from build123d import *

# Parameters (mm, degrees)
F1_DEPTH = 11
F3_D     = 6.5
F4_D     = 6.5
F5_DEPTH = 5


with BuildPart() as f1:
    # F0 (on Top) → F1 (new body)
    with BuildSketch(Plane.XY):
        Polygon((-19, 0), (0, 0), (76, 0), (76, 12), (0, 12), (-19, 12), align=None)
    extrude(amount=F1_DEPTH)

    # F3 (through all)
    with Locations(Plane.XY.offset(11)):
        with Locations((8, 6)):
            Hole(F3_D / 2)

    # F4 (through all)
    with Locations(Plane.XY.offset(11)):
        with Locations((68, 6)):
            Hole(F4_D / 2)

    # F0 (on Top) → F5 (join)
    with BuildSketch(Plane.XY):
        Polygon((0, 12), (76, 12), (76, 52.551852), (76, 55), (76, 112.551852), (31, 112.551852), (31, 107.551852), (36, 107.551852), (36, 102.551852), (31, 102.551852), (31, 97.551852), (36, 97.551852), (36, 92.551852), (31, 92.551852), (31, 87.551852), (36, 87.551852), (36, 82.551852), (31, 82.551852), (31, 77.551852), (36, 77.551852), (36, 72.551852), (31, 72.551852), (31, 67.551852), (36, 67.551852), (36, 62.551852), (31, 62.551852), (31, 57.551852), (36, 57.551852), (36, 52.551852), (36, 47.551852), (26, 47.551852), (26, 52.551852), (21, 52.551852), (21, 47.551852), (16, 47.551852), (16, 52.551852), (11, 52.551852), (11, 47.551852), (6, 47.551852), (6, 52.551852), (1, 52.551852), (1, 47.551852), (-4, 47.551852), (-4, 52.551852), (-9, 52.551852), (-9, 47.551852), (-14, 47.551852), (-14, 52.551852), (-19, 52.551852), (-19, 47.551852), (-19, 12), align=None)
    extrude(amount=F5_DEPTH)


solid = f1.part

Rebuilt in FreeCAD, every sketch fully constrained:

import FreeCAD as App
import Part
import Sketcher
Q = App.Units.Quantity

doc = App.newDocument("Part")
body = doc.addObject("PartDesign::Body", "Body")

sketch1 = body.newObject("Sketcher::SketchObject", "Sketch")
sketch1.AttachmentSupport = (doc.getObject("XY_Plane"), [""])
sketch1.MapMode = "FlatFace"
sketch1.addGeometry(Part.LineSegment(App.Vector(-19, 0, 0), App.Vector(76, 0, 0)), False)
sketch1.addGeometry(Part.LineSegment(App.Vector(76, 0, 0), App.Vector(76, 12, 0)), False)
sketch1.addGeometry(Part.LineSegment(App.Vector(76, 12, 0), App.Vector(-19, 12, 0)), False)
sketch1.addGeometry(Part.LineSegment(App.Vector(-19, 12, 0), App.Vector(-19, 0, 0)), False)
sketch1.addConstraint(Sketcher.Constraint("Coincident", 0, 2, 1, 1))
sketch1.addConstraint(Sketcher.Constraint("Coincident", 1, 2, 2, 1))
sketch1.addConstraint(Sketcher.Constraint("Coincident", 2, 2, 3, 1))
sketch1.addConstraint(Sketcher.Constraint("Coincident", 3, 2, 0, 1))
sketch1.addConstraint(Sketcher.Constraint("Horizontal", 0))
sketch1.addConstraint(Sketcher.Constraint("Vertical", 1))
sketch1.addConstraint(Sketcher.Constraint("Horizontal", 2))
sketch1.addConstraint(Sketcher.Constraint("Vertical", 3))
sketch1.addConstraint(Sketcher.Constraint("PointOnObject", 0, 2, -1))
sketch1.addConstraint(Sketcher.Constraint("DistanceX", 0, 1, 0, 2, Q("95 mm")))
sketch1.addConstraint(Sketcher.Constraint("DistanceY", 1, 1, 1, 2, Q("12 mm")))
sketch1.addConstraint(Sketcher.Constraint("DistanceX", -1, 1, 0, 2, Q("76 mm")))
pad1 = body.newObject("PartDesign::Pad", "Pad")
pad1.Profile = sketch1
pad1.Length = 11

sketch2 = body.newObject("Sketcher::SketchObject", "Sketch001")
sketch2.AttachmentSupport = (doc.getObject("XY_Plane"), [""])
sketch2.MapMode = "FlatFace"
sketch2.AttachmentOffset = App.Placement(App.Vector(0, 0, 11), App.Rotation())
sketch2.addGeometry(Part.Circle(App.Vector(8, 6, 0), App.Vector(0, 0, 1), 3.2), False)
sketch2.addConstraint(Sketcher.Constraint("Diameter", 0, Q("6.5 mm")))
sketch2.addConstraint(Sketcher.Constraint("DistanceX", -1, 1, 0, 3, Q("8 mm")))
sketch2.addConstraint(Sketcher.Constraint("DistanceY", -1, 1, 0, 3, Q("6 mm")))
doc.recompute()
hole = body.newObject("PartDesign::Hole", "Hole")
hole.Profile = sketch2
hole.ThreadType = "None"
hole.Diameter = 6.5
hole.DepthType = "ThroughAll"

sketch3 = body.newObject("Sketcher::SketchObject", "Sketch002")
sketch3.AttachmentSupport = (doc.getObject("XY_Plane"), [""])
sketch3.MapMode = "FlatFace"
sketch3.AttachmentOffset = App.Placement(App.Vector(0, 0, 11), App.Rotation())
sketch3.addGeometry(Part.Circle(App.Vector(68, 6, 0), App.Vector(0, 0, 1), 3.2), False)
sketch3.addConstraint(Sketcher.Constraint("Diameter", 0, Q("6.5 mm")))
sketch3.addConstraint(Sketcher.Constraint("DistanceX", -1, 1, 0, 3, Q("68 mm")))
sketch3.addConstraint(Sketcher.Constraint("DistanceY", -1, 1, 0, 3, Q("6 mm")))
doc.recompute()
hole2 = body.newObject("PartDesign::Hole", "Hole001")
hole2.Profile = sketch3
hole2.ThreadType = "None"
hole2.Diameter = 6.5
hole2.DepthType = "ThroughAll"

sketch4 = body.newObject("Sketcher::SketchObject", "Sketch003")
sketch4.AttachmentSupport = (doc.getObject("XY_Plane"), [""])
sketch4.MapMode = "FlatFace"
sketch4.addGeometry(Part.LineSegment(App.Vector(76, 12, 0), App.Vector(76, 113, 0)), False)
sketch4.addGeometry(Part.LineSegment(App.Vector(76, 113, 0), App.Vector(31, 113, 0)), False)
sketch4.addGeometry(Part.LineSegment(App.Vector(31, 113, 0), App.Vector(31, 108, 0)), False)
sketch4.addGeometry(Part.LineSegment(App.Vector(31, 108, 0), App.Vector(36, 108, 0)), False)
sketch4.addGeometry(Part.LineSegment(App.Vector(36, 108, 0), App.Vector(36, 103, 0)), False)
sketch4.addGeometry(Part.LineSegment(App.Vector(36, 103, 0), App.Vector(31, 103, 0)), False)
sketch4.addGeometry(Part.LineSegment(App.Vector(31, 103, 0), App.Vector(31, 98, 0)), False)
sketch4.addGeometry(Part.LineSegment(App.Vector(31, 98, 0), App.Vector(36, 98, 0)), False)
sketch4.addGeometry(Part.LineSegment(App.Vector(36, 98, 0), App.Vector(36, 93, 0)), False)
sketch4.addGeometry(Part.LineSegment(App.Vector(36, 93, 0), App.Vector(31, 93, 0)), False)
sketch4.addGeometry(Part.LineSegment(App.Vector(31, 93, 0), App.Vector(31, 88, 0)), False)
sketch4.addGeometry(Part.LineSegment(App.Vector(31, 88, 0), App.Vector(36, 88, 0)), False)
sketch4.addGeometry(Part.LineSegment(App.Vector(36, 88, 0), App.Vector(36, 83, 0)), False)
sketch4.addGeometry(Part.LineSegment(App.Vector(36, 83, 0), App.Vector(31, 83, 0)), False)
sketch4.addGeometry(Part.LineSegment(App.Vector(31, 83, 0), App.Vector(31, 78, 0)), False)
sketch4.addGeometry(Part.LineSegment(App.Vector(31, 78, 0), App.Vector(36, 78, 0)), False)
sketch4.addGeometry(Part.LineSegment(App.Vector(36, 78, 0), App.Vector(36, 73, 0)), False)
sketch4.addGeometry(Part.LineSegment(App.Vector(36, 73, 0), App.Vector(31, 73, 0)), False)
sketch4.addGeometry(Part.LineSegment(App.Vector(31, 73, 0), App.Vector(31, 68, 0)), False)
sketch4.addGeometry(Part.LineSegment(App.Vector(31, 68, 0), App.Vector(36, 68, 0)), False)
sketch4.addGeometry(Part.LineSegment(App.Vector(36, 68, 0), App.Vector(36, 63, 0)), False)
sketch4.addGeometry(Part.LineSegment(App.Vector(36, 63, 0), App.Vector(31, 63, 0)), False)
sketch4.addGeometry(Part.LineSegment(App.Vector(31, 63, 0), App.Vector(31, 58, 0)), False)
sketch4.addGeometry(Part.LineSegment(App.Vector(31, 58, 0), App.Vector(36, 58, 0)), False)
sketch4.addGeometry(Part.LineSegment(App.Vector(36, 58, 0), App.Vector(36, 48, 0)), False)
sketch4.addGeometry(Part.LineSegment(App.Vector(36, 48, 0), App.Vector(26, 48, 0)), False)
sketch4.addGeometry(Part.LineSegment(App.Vector(26, 48, 0), App.Vector(26, 53, 0)), False)
sketch4.addGeometry(Part.LineSegment(App.Vector(26, 53, 0), App.Vector(21, 53, 0)), False)
sketch4.addGeometry(Part.LineSegment(App.Vector(21, 53, 0), App.Vector(21, 48, 0)), False)
sketch4.addGeometry(Part.LineSegment(App.Vector(21, 48, 0), App.Vector(16, 48, 0)), False)
sketch4.addGeometry(Part.LineSegment(App.Vector(16, 48, 0), App.Vector(16, 53, 0)), False)
sketch4.addGeometry(Part.LineSegment(App.Vector(16, 53, 0), App.Vector(11, 53, 0)), False)
sketch4.addGeometry(Part.LineSegment(App.Vector(11, 53, 0), App.Vector(11, 48, 0)), False)
sketch4.addGeometry(Part.LineSegment(App.Vector(11, 48, 0), App.Vector(6, 48, 0)), False)
sketch4.addGeometry(Part.LineSegment(App.Vector(6, 48, 0), App.Vector(6, 53, 0)), False)
sketch4.addGeometry(Part.LineSegment(App.Vector(6, 53, 0), App.Vector(1, 53, 0)), False)
sketch4.addGeometry(Part.LineSegment(App.Vector(1, 53, 0), App.Vector(1, 48, 0)), False)
sketch4.addGeometry(Part.LineSegment(App.Vector(1, 48, 0), App.Vector(-4, 48, 0)), False)
sketch4.addGeometry(Part.LineSegment(App.Vector(-4, 48, 0), App.Vector(-4, 53, 0)), False)
sketch4.addGeometry(Part.LineSegment(App.Vector(-4, 53, 0), App.Vector(-9, 53, 0)), False)
sketch4.addGeometry(Part.LineSegment(App.Vector(-9, 53, 0), App.Vector(-9, 48, 0)), False)
sketch4.addGeometry(Part.LineSegment(App.Vector(-9, 48, 0), App.Vector(-14, 48, 0)), False)
sketch4.addGeometry(Part.LineSegment(App.Vector(-14, 48, 0), App.Vector(-14, 53, 0)), False)
sketch4.addGeometry(Part.LineSegment(App.Vector(-14, 53, 0), App.Vector(-19, 53, 0)), False)
sketch4.addGeometry(Part.LineSegment(App.Vector(-19, 53, 0), App.Vector(-19, 12, 0)), False)
sketch4.addGeometry(Part.LineSegment(App.Vector(-19, 12, 0), App.Vector(76, 12, 0)), False)
sketch4.addConstraint(Sketcher.Constraint("Coincident", 0, 2, 1, 1))
sketch4.addConstraint(Sketcher.Constraint("Coincident", 1, 2, 2, 1))
sketch4.addConstraint(Sketcher.Constraint("Coincident", 2, 2, 3, 1))
sketch4.addConstraint(Sketcher.Constraint("Coincident", 3, 2, 4, 1))
sketch4.addConstraint(Sketcher.Constraint("Coincident", 4, 2, 5, 1))
sketch4.addConstraint(Sketcher.Constraint("Coincident", 5, 2, 6, 1))
sketch4.addConstraint(Sketcher.Constraint("Coincident", 6, 2, 7, 1))
sketch4.addConstraint(Sketcher.Constraint("Coincident", 7, 2, 8, 1))
sketch4.addConstraint(Sketcher.Constraint("Coincident", 8, 2, 9, 1))
sketch4.addConstraint(Sketcher.Constraint("Coincident", 9, 2, 10, 1))
sketch4.addConstraint(Sketcher.Constraint("Coincident", 10, 2, 11, 1))
sketch4.addConstraint(Sketcher.Constraint("Coincident", 11, 2, 12, 1))
sketch4.addConstraint(Sketcher.Constraint("Coincident", 12, 2, 13, 1))
sketch4.addConstraint(Sketcher.Constraint("Coincident", 13, 2, 14, 1))
sketch4.addConstraint(Sketcher.Constraint("Coincident", 14, 2, 15, 1))
sketch4.addConstraint(Sketcher.Constraint("Coincident", 15, 2, 16, 1))
sketch4.addConstraint(Sketcher.Constraint("Coincident", 16, 2, 17, 1))
sketch4.addConstraint(Sketcher.Constraint("Coincident", 17, 2, 18, 1))
sketch4.addConstraint(Sketcher.Constraint("Coincident", 18, 2, 19, 1))
sketch4.addConstraint(Sketcher.Constraint("Coincident", 19, 2, 20, 1))
sketch4.addConstraint(Sketcher.Constraint("Coincident", 20, 2, 21, 1))
sketch4.addConstraint(Sketcher.Constraint("Coincident", 21, 2, 22, 1))
sketch4.addConstraint(Sketcher.Constraint("Coincident", 22, 2, 23, 1))
sketch4.addConstraint(Sketcher.Constraint("Coincident", 23, 2, 24, 1))
sketch4.addConstraint(Sketcher.Constraint("Coincident", 24, 2, 25, 1))
sketch4.addConstraint(Sketcher.Constraint("Coincident", 25, 2, 26, 1))
sketch4.addConstraint(Sketcher.Constraint("Coincident", 26, 2, 27, 1))
sketch4.addConstraint(Sketcher.Constraint("Coincident", 27, 2, 28, 1))
sketch4.addConstraint(Sketcher.Constraint("Coincident", 28, 2, 29, 1))
sketch4.addConstraint(Sketcher.Constraint("Coincident", 29, 2, 30, 1))
sketch4.addConstraint(Sketcher.Constraint("Coincident", 30, 2, 31, 1))
sketch4.addConstraint(Sketcher.Constraint("Coincident", 31, 2, 32, 1))
sketch4.addConstraint(Sketcher.Constraint("Coincident", 32, 2, 33, 1))
sketch4.addConstraint(Sketcher.Constraint("Coincident", 33, 2, 34, 1))
sketch4.addConstraint(Sketcher.Constraint("Coincident", 34, 2, 35, 1))
sketch4.addConstraint(Sketcher.Constraint("Coincident", 35, 2, 36, 1))
sketch4.addConstraint(Sketcher.Constraint("Coincident", 36, 2, 37, 1))
sketch4.addConstraint(Sketcher.Constraint("Coincident", 37, 2, 38, 1))
sketch4.addConstraint(Sketcher.Constraint("Coincident", 38, 2, 39, 1))
sketch4.addConstraint(Sketcher.Constraint("Coincident", 39, 2, 40, 1))
sketch4.addConstraint(Sketcher.Constraint("Coincident", 40, 2, 41, 1))
sketch4.addConstraint(Sketcher.Constraint("Coincident", 41, 2, 42, 1))
sketch4.addConstraint(Sketcher.Constraint("Coincident", 42, 2, 43, 1))
sketch4.addConstraint(Sketcher.Constraint("Coincident", 43, 2, 44, 1))
sketch4.addConstraint(Sketcher.Constraint("Coincident", 44, 2, 45, 1))
sketch4.addConstraint(Sketcher.Constraint("Coincident", 45, 2, 0, 1))
sketch4.addConstraint(Sketcher.Constraint("Vertical", 0))
sketch4.addConstraint(Sketcher.Constraint("Horizontal", 1))
sketch4.addConstraint(Sketcher.Constraint("Vertical", 2))
sketch4.addConstraint(Sketcher.Constraint("Horizontal", 3))
sketch4.addConstraint(Sketcher.Constraint("Vertical", 4))
sketch4.addConstraint(Sketcher.Constraint("Horizontal", 5))
sketch4.addConstraint(Sketcher.Constraint("Vertical", 6))
sketch4.addConstraint(Sketcher.Constraint("Horizontal", 7))
sketch4.addConstraint(Sketcher.Constraint("Vertical", 8))
sketch4.addConstraint(Sketcher.Constraint("Horizontal", 9))
sketch4.addConstraint(Sketcher.Constraint("Vertical", 10))
sketch4.addConstraint(Sketcher.Constraint("Horizontal", 11))
sketch4.addConstraint(Sketcher.Constraint("Vertical", 12))
sketch4.addConstraint(Sketcher.Constraint("Horizontal", 13))
sketch4.addConstraint(Sketcher.Constraint("Vertical", 14))
sketch4.addConstraint(Sketcher.Constraint("Horizontal", 15))
sketch4.addConstraint(Sketcher.Constraint("Vertical", 16))
sketch4.addConstraint(Sketcher.Constraint("Horizontal", 17))
sketch4.addConstraint(Sketcher.Constraint("Vertical", 18))
sketch4.addConstraint(Sketcher.Constraint("Horizontal", 19))
sketch4.addConstraint(Sketcher.Constraint("Vertical", 20))
sketch4.addConstraint(Sketcher.Constraint("Horizontal", 21))
sketch4.addConstraint(Sketcher.Constraint("Vertical", 22))
sketch4.addConstraint(Sketcher.Constraint("Horizontal", 23))
sketch4.addConstraint(Sketcher.Constraint("Vertical", 24))
sketch4.addConstraint(Sketcher.Constraint("Horizontal", 25))
sketch4.addConstraint(Sketcher.Constraint("Vertical", 26))
sketch4.addConstraint(Sketcher.Constraint("Horizontal", 27))
sketch4.addConstraint(Sketcher.Constraint("Vertical", 28))
sketch4.addConstraint(Sketcher.Constraint("Horizontal", 29))
sketch4.addConstraint(Sketcher.Constraint("Vertical", 30))
sketch4.addConstraint(Sketcher.Constraint("Horizontal", 31))
sketch4.addConstraint(Sketcher.Constraint("Vertical", 32))
sketch4.addConstraint(Sketcher.Constraint("Horizontal", 33))
sketch4.addConstraint(Sketcher.Constraint("Vertical", 34))
sketch4.addConstraint(Sketcher.Constraint("Horizontal", 35))
sketch4.addConstraint(Sketcher.Constraint("Vertical", 36))
sketch4.addConstraint(Sketcher.Constraint("Horizontal", 37))
sketch4.addConstraint(Sketcher.Constraint("Vertical", 38))
sketch4.addConstraint(Sketcher.Constraint("Horizontal", 39))
sketch4.addConstraint(Sketcher.Constraint("Vertical", 40))
sketch4.addConstraint(Sketcher.Constraint("Horizontal", 41))
sketch4.addConstraint(Sketcher.Constraint("Vertical", 42))
sketch4.addConstraint(Sketcher.Constraint("Horizontal", 43))
sketch4.addConstraint(Sketcher.Constraint("Vertical", 44))
sketch4.addConstraint(Sketcher.Constraint("Horizontal", 45))
sketch4.addConstraint(Sketcher.Constraint("Horizontal", 25, 2, 28, 2))
sketch4.addConstraint(Sketcher.Constraint("Horizontal", 27, 2, 30, 2))
sketch4.addConstraint(Sketcher.Constraint("Horizontal", 29, 2, 32, 2))
sketch4.addConstraint(Sketcher.Constraint("Horizontal", 31, 2, 34, 2))
sketch4.addConstraint(Sketcher.Constraint("Horizontal", 33, 2, 36, 2))
sketch4.addConstraint(Sketcher.Constraint("Horizontal", 35, 2, 38, 2))
sketch4.addConstraint(Sketcher.Constraint("Horizontal", 37, 2, 40, 2))
sketch4.addConstraint(Sketcher.Constraint("Horizontal", 39, 2, 42, 2))
sketch4.addConstraint(Sketcher.Constraint("Vertical", 2, 2, 5, 2))
sketch4.addConstraint(Sketcher.Constraint("Vertical", 4, 2, 7, 2))
sketch4.addConstraint(Sketcher.Constraint("Vertical", 6, 2, 9, 2))
sketch4.addConstraint(Sketcher.Constraint("Vertical", 8, 2, 11, 2))
sketch4.addConstraint(Sketcher.Constraint("Vertical", 10, 2, 13, 2))
sketch4.addConstraint(Sketcher.Constraint("Vertical", 12, 2, 15, 2))
sketch4.addConstraint(Sketcher.Constraint("Vertical", 14, 2, 17, 2))
sketch4.addConstraint(Sketcher.Constraint("Vertical", 16, 2, 19, 2))
sketch4.addConstraint(Sketcher.Constraint("Vertical", 18, 2, 21, 2))
sketch4.addConstraint(Sketcher.Constraint("Vertical", 20, 2, 23, 2))
sketch4.addConstraint(Sketcher.Constraint("Equal", 23, 27))
sketch4.addConstraint(Sketcher.Constraint("Equal", 27, 29))
sketch4.addConstraint(Sketcher.Constraint("Equal", 29, 31))
sketch4.addConstraint(Sketcher.Constraint("Equal", 31, 33))
sketch4.addConstraint(Sketcher.Constraint("Equal", 33, 35))
sketch4.addConstraint(Sketcher.Constraint("Equal", 35, 37))
sketch4.addConstraint(Sketcher.Constraint("Equal", 37, 39))
sketch4.addConstraint(Sketcher.Constraint("Equal", 39, 41))
sketch4.addConstraint(Sketcher.Constraint("Equal", 41, 43))
sketch4.addConstraint(Sketcher.Constraint("Equal", 43, 2))
sketch4.addConstraint(Sketcher.Constraint("Equal", 2, 4))
sketch4.addConstraint(Sketcher.Constraint("Equal", 4, 6))
sketch4.addConstraint(Sketcher.Constraint("Equal", 6, 8))
sketch4.addConstraint(Sketcher.Constraint("Equal", 8, 10))
sketch4.addConstraint(Sketcher.Constraint("Equal", 10, 12))
sketch4.addConstraint(Sketcher.Constraint("Equal", 12, 14))
sketch4.addConstraint(Sketcher.Constraint("Equal", 14, 16))
sketch4.addConstraint(Sketcher.Constraint("Equal", 16, 18))
sketch4.addConstraint(Sketcher.Constraint("Equal", 18, 20))
sketch4.addConstraint(Sketcher.Constraint("Equal", 20, 22))
sketch4.addConstraint(Sketcher.Constraint("Equal", 25, 24))
sketch4.addConstraint(Sketcher.Constraint("Equal", 22, 26))
sketch4.addConstraint(Sketcher.Constraint("DistanceX", 1, 2, 1, 1, Q("45 mm")))
sketch4.addConstraint(Sketcher.Constraint("DistanceX", 3, 1, 3, 2, Q("5 mm")))
sketch4.addConstraint(Sketcher.Constraint("DistanceX", 25, 2, 25, 1, Q("10 mm")))
sketch4.addConstraint(Sketcher.Constraint("DistanceX", -1, 1, 0, 2, Q("76 mm")))
sketch4.addConstraint(Sketcher.Constraint("DistanceY", -1, 1, 44, 2, Q("12 mm")))
sketch4.addConstraint(Sketcher.Constraint("DistanceY", 0, 1, 0, 2, Q("100.551852 mm")))
pad2 = body.newObject("PartDesign::Pad", "Pad001")
pad2.Profile = sketch4
pad2.Length = 5

doc.recompute()
